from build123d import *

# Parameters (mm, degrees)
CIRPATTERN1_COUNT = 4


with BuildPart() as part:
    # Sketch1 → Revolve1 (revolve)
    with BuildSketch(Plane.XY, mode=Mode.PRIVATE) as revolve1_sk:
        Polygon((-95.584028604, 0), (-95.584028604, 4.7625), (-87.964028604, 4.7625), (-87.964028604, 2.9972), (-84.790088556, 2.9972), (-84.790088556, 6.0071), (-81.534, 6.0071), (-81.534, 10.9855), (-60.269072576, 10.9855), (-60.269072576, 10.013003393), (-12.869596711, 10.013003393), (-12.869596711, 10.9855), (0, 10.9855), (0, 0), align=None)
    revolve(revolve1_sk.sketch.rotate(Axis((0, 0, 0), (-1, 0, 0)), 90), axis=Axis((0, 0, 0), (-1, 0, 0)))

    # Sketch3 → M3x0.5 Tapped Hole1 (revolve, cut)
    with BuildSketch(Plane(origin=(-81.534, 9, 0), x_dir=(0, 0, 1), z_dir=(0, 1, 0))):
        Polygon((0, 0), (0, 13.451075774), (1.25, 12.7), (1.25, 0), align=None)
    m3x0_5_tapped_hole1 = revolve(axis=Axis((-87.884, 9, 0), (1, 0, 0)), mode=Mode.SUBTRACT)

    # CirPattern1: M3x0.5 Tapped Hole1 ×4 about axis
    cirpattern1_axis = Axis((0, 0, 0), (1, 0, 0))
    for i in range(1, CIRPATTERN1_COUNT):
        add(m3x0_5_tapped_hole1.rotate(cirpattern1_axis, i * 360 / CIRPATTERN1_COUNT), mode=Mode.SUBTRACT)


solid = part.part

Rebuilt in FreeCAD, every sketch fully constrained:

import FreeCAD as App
import Part
import Sketcher
Q = App.Units.Quantity

doc = App.newDocument("Part")
body = doc.addObject("PartDesign::Body", "Body")

# Sketch on XY plane
sketch1 = body.newObject("Sketcher::SketchObject", "Sketch")
sketch1.AttachmentSupport = (doc.getObject("XY_Plane"), [""])
sketch1.MapMode = "FlatFace"
sketch1.addGeometry(Part.LineSegment(App.Vector(-95.6, 4.8, 0), App.Vector(-95.6, 0, 0)), False)
sketch1.addGeometry(Part.LineSegment(App.Vector(-95.6, 0, 0), App.Vector(0, 0, 0)), False)
sketch1.addGeometry(Part.LineSegment(App.Vector(0, 0, 0), App.Vector(0, 11, 0)), False)
sketch1.addGeometry(Part.LineSegment(App.Vector(0, 11, 0), App.Vector(-12.9, 11, 0)), False)
sketch1.addGeometry(Part.LineSegment(App.Vector(-12.9, 11, 0), App.Vector(-12.9, 10, 0)), False)
sketch1.addGeometry(Part.LineSegment(App.Vector(-12.9, 10, 0), App.Vector(-60.3, 10, 0)), False)
sketch1.addGeometry(Part.LineSegment(App.Vector(-60.3, 10, 0), App.Vector(-60.3, 11, 0)), False)
sketch1.addGeometry(Part.LineSegment(App.Vector(-60.3, 11, 0), App.Vector(-81.5, 11, 0)), False)
sketch1.addGeometry(Part.LineSegment(App.Vector(-81.5, 11, 0), App.Vector(-81.5, 6, 0)), False)
sketch1.addGeometry(Part.LineSegment(App.Vector(-81.5, 6, 0), App.Vector(-84.8, 6, 0)), False)
sketch1.addGeometry(Part.LineSegment(App.Vector(-84.8, 6, 0), App.Vector(-84.8, 3, 0)), False)
sketch1.addGeometry(Part.LineSegment(App.Vector(-84.8, 3, 0), App.Vector(-88, 3, 0)), False)
sketch1.addGeometry(Part.LineSegment(App.Vector(-88, 3, 0), App.Vector(-88, 4.8, 0)), False)
sketch1.addGeometry(Part.LineSegment(App.Vector(-88, 4.8, 0), App.Vector(-95.6, 4.8, 0)), False)
sketch1.addConstraint(Sketcher.Constraint("Coincident", 0, 2, 1, 1))
sketch1.addConstraint(Sketcher.Constraint("Coincident", 1, 2, 2, 1))
sketch1.addConstraint(Sketcher.Constraint("Coincident", 2, 2, 3, 1))
sketch1.addConstraint(Sketcher.Constraint("Coincident", 3, 2, 4, 1))
sketch1.addConstraint(Sketcher.Constraint("Coincident", 4, 2, 5, 1))
sketch1.addConstraint(Sketcher.Constraint("Coincident", 5, 2, 6, 1))
sketch1.addConstraint(Sketcher.Constraint("Coincident", 6, 2, 7, 1))
sketch1.addConstraint(Sketcher.Constraint("Coincident", 7, 2, 8, 1))
sketch1.addConstraint(Sketcher.Constraint("Coincident", 8, 2, 9, 1))
sketch1.addConstraint(Sketcher.Constraint("Coincident", 9, 2, 10, 1))
sketch1.addConstraint(Sketcher.Constraint("Coincident", 10, 2, 11, 1))
sketch1.addConstraint(Sketcher.Constraint("Coincident", 11, 2, 12, 1))
sketch1.addConstraint(Sketcher.Constraint("Coincident", 12, 2, 13, 1))
sketch1.addConstraint(Sketcher.Constraint("Coincident", 13, 2, 0, 1))
sketch1.addConstraint(Sketcher.Constraint("Vertical", 0))
sketch1.addConstraint(Sketcher.Constraint("Horizontal", 1))
sketch1.addConstraint(Sketcher.Constraint("Vertical", 2))
sketch1.addConstraint(Sketcher.Constraint("Horizontal", 3))
sketch1.addConstraint(Sketcher.Constraint("Vertical", 4))
sketch1.addConstraint(Sketcher.Constraint("Horizontal", 5))
sketch1.addConstraint(Sketcher.Constraint("Vertical", 6))
sketch1.addConstraint(Sketcher.Constraint("Horizontal", 7))
sketch1.addConstraint(Sketcher.Constraint("Vertical", 8))
sketch1.addConstraint(Sketcher.Constraint("Horizontal", 9))
sketch1.addConstraint(Sketcher.Constraint("Vertical", 10))
sketch1.addConstraint(Sketcher.Constraint("Horizontal", 11))
sketch1.addConstraint(Sketcher.Constraint("Vertical", 12))
sketch1.addConstraint(Sketcher.Constraint("Horizontal", 13))
sketch1.addConstraint(Sketcher.Constraint("Coincident", 1, 2, -1, 1))
sketch1.addConstraint(Sketcher.Constraint("Horizontal", 3, 2, 6, 2))
sketch1.addConstraint(Sketcher.Constraint("DistanceX", 13, 2, 13, 1, Q("0.3 in")))
sketch1.addConstraint(Sketcher.Constraint("DistanceY", 0, 2, 0, 1, Q("0.1875 in")))
sketch1.addConstraint(Sketcher.Constraint("DistanceY", 8, 2, 8, 1, Q("0.196 in")))
sketch1.addConstraint(Sketcher.Constraint("DistanceX", 7, 2, -1, 1, Q("3.21 in")))
sketch1.addConstraint(Sketcher.Constraint("DistanceY", 2, 1, 2, 2, Q("0.4325 in")))
sketch1.addConstraint(Sketcher.Constraint("DistanceY", 10, 2, 10, 1, Q("0.1185 in")))
sketch1.addConstraint(Sketcher.Constraint("DistanceX", 1, 1, 1, 2, 95.584029))
sketch1.addConstraint(Sketcher.Constraint("DistanceX", 9, 2, 9, 1, 3.256089))
sketch1.addConstraint(Sketcher.Constraint("DistanceX", 3, 2, 3, 1, 12.869597))
sketch1.addConstraint(Sketcher.Constraint("DistanceX", 5, 2, 5, 1, 47.399476))
sketch1.addConstraint(Sketcher.Constraint("DistanceY", 4, 2, 4, 1, 0.972497))
revolution = body.newObject("PartDesign::Revolution", "Revolution")
revolution.Profile = sketch1
revolution.ReferenceAxis = (sketch1, ["H_Axis"])
revolution.Angle = 360

# Sketch on XZ plane
sketch2 = body.newObject("Sketcher::SketchObject", "Sketch001")
sketch2.AttachmentSupport = (doc.getObject("XZ_Plane"), [""])
sketch2.MapMode = "FlatFace"
sketch2.AttachmentOffset = App.Placement(App.Vector(0, 0, -9), App.Rotation())
sketch2.addGeometry(Part.LineSegment(App.Vector(-68.1, 0, 0), App.Vector(-81.5, 0, 0)), False)
sketch2.addGeometry(Part.LineSegment(App.Vector(-81.5, 0, 0), App.Vector(-81.5, 1.2, 0)), False)
sketch2.addGeometry(Part.LineSegment(App.Vector(-81.5, 1.2, 0), App.Vector(-68.8, 1.2, 0)), False)
sketch2.addGeometry(Part.LineSegment(App.Vector(-68.8, 1.2, 0), App.Vector(-68.1, 0, 0)), False)
sketch2.addConstraint(Sketcher.Constraint("Coincident", 0, 2, 1, 1))
sketch2.addConstraint(Sketcher.Constraint("Coincident", 1, 2, 2, 1))
sketch2.addConstraint(Sketcher.Constraint("Coincident", 2, 2, 3, 1))
sketch2.addConstraint(Sketcher.Constraint("Coincident", 3, 2, 0, 1))
sketch2.addConstraint(Sketcher.Constraint("Horizontal", 0))
sketch2.addConstraint(Sketcher.Constraint("Vertical", 1))
sketch2.addConstraint(Sketcher.Constraint("Horizontal", 2))
sketch2.addConstraint(Sketcher.Constraint("PointOnObject", 0, 2, -1))
sketch2.addConstraint(Sketcher.Constraint("DistanceX", 2, 1, 2, 2, Q("0.5 in")))
sketch2.addConstraint(Sketcher.Constraint("Angle", 3, Q("-59 deg")))
sketch2.addConstraint(Sketcher.Constraint("DistanceX", 0, 2, -1, 1, Q("3.21 in")))
sketch2.addConstraint(Sketcher.Constraint("DistanceY", 1, 1, 1, 2, 1.25))
groove = body.newObject("PartDesign::Groove", "Groove")
groove.Profile = sketch2
groove.ReferenceAxis = (sketch2, ["H_Axis"])
groove.Angle = 360
doc.recompute()

polarpattern = body.newObject("PartDesign::PolarPattern", "PolarPattern")
polarpattern.Originals = [groove]
polarpattern.Axis = (doc.getObject("X_Axis"), [""])
polarpattern.Angle = 360
polarpattern.Occurrences = 4
body.Tip = polarpattern

doc.recompute()
